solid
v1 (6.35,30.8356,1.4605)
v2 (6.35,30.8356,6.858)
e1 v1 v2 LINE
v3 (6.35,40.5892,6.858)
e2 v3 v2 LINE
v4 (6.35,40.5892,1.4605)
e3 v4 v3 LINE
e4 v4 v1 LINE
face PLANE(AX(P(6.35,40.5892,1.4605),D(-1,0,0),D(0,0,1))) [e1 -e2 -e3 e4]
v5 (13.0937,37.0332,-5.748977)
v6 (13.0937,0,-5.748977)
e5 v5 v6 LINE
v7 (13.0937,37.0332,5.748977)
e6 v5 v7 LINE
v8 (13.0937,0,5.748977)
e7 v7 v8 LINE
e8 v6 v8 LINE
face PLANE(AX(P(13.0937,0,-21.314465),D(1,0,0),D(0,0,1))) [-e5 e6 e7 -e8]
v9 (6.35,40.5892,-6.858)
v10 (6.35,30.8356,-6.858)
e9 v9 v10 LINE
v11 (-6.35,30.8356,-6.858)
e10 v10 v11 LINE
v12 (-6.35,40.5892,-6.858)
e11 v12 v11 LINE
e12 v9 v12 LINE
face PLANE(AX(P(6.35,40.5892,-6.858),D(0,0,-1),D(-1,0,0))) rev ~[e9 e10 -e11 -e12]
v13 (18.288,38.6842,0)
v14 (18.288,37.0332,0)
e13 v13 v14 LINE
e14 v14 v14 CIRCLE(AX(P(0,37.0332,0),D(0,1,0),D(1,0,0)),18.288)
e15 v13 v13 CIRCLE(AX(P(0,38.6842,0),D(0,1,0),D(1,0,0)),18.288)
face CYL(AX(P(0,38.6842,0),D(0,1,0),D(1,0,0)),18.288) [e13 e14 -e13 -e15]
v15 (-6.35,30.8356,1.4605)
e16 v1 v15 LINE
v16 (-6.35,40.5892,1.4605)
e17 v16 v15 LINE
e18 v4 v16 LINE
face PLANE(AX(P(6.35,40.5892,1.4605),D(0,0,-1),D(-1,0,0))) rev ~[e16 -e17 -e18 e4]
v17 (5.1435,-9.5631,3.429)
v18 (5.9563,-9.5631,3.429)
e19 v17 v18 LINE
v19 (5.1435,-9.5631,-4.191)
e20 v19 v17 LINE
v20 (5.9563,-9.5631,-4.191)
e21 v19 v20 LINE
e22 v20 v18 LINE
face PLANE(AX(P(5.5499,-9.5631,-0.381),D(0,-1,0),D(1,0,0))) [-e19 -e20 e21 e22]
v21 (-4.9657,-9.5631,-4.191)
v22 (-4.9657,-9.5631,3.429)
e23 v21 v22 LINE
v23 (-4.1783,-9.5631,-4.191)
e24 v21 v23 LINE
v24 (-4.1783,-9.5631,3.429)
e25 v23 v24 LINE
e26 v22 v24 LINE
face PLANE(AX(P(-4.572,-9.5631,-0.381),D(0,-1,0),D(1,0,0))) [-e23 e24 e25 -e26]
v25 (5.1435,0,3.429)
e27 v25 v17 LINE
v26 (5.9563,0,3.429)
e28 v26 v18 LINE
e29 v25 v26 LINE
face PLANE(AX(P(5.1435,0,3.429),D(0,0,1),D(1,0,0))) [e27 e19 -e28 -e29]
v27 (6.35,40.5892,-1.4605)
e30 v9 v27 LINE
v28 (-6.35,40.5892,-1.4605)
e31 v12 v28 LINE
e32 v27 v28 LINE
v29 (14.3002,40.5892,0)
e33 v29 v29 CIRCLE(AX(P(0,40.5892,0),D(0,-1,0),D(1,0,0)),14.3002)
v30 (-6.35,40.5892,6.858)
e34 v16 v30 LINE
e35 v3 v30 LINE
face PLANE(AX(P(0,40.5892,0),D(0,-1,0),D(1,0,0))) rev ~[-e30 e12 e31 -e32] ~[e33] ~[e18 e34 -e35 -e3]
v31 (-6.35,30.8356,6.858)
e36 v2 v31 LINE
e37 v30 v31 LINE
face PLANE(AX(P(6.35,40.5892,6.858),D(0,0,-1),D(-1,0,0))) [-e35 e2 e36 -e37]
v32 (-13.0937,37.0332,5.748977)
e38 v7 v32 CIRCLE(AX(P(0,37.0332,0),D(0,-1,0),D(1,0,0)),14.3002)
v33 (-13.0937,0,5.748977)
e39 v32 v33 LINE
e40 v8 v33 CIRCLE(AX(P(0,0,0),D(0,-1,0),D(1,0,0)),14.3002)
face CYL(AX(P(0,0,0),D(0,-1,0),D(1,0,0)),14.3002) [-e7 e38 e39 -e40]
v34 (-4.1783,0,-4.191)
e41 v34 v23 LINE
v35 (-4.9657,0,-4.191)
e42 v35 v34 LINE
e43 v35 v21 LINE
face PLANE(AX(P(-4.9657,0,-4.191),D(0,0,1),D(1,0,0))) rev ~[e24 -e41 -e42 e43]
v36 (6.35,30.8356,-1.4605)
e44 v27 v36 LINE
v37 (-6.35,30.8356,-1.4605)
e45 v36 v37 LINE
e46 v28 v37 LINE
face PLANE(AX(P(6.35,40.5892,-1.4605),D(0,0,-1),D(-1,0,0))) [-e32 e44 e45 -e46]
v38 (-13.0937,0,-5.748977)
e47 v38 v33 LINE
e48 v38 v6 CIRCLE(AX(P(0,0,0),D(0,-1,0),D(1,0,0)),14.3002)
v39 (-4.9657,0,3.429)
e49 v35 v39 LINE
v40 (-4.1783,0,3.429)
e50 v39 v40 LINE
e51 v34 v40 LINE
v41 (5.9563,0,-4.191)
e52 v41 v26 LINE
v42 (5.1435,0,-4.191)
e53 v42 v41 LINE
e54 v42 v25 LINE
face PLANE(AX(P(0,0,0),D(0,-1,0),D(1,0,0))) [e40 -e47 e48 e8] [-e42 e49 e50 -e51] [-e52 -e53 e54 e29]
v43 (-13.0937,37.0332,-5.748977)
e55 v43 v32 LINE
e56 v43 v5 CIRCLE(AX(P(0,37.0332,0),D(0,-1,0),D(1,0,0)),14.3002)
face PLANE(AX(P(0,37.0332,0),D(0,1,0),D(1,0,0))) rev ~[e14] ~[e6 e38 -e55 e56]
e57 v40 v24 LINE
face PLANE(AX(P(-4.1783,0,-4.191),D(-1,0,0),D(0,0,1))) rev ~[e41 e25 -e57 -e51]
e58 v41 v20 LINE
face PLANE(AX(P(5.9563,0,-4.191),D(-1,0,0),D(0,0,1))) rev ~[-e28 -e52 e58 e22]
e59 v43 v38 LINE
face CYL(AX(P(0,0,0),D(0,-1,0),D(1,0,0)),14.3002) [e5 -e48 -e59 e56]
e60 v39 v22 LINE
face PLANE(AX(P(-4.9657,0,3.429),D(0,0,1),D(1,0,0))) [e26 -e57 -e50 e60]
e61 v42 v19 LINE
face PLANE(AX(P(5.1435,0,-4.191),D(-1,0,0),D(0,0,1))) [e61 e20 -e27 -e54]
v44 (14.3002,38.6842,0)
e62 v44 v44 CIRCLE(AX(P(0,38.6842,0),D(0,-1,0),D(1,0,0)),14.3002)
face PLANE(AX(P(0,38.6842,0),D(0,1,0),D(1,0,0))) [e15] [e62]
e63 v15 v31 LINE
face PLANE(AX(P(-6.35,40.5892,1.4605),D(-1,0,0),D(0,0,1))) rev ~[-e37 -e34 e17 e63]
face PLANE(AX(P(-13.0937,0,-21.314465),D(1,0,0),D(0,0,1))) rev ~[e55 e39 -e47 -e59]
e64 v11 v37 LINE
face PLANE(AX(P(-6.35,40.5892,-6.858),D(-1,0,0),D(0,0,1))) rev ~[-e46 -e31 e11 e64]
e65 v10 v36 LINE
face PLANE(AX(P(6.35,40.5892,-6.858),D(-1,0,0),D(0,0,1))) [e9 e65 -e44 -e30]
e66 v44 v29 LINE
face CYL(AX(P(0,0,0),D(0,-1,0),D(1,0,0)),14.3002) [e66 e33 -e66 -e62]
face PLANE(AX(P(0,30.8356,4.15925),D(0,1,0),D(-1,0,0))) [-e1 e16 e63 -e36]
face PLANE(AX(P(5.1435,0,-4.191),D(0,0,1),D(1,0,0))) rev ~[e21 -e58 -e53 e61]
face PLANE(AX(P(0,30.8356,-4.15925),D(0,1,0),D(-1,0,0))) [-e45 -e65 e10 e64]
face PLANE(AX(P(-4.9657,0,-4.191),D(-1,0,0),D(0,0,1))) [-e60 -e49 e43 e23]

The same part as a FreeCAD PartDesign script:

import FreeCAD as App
import Part
import Sketcher

V = App.Vector
Q = App.Units.Quantity

doc = App.newDocument("Part")
body = doc.addObject("PartDesign::Body", "Body")

sketch1 = body.newObject("Sketcher::SketchObject", "Sketch")
sketch1.AttachmentSupport = (doc.getObject("XZ_Plane"), [""])
sketch1.MapMode = "FlatFace"
sketch1.addGeometry(Part.Circle(V(0, 0, 0), V(0, 0, 1), 14.3002), False)
sketch1.addConstraint(Sketcher.Constraint("Coincident", 0, 3, -1, 1))
sketch1.addConstraint(Sketcher.Constraint("Diameter", 0, Q("1.126 in")))
pad1 = body.newObject("PartDesign::Pad", "Pad")
pad1.Profile = sketch1
pad1.Length = Q("1.598 in")
pad1.Reversed = True

sketch2 = body.newObject("Sketcher::SketchObject", "Sketch001")
sketch2.AttachmentSupport = (doc.getObject("XZ_Plane"), [""])
sketch2.MapMode = "FlatFace"
sketch2.addGeometry(Part.LineSegment(V(-24.961438, 22.308411, 0), V(-24.961438, -21.314465, 0)), False)
sketch2.addGeometry(Part.LineSegment(V(-24.961438, -21.314465, 0), V(-13.0937, -21.314465, 0)), False)
sketch2.addGeometry(Part.LineSegment(V(-13.0937, -21.314465, 0), V(-13.0937, 22.308411, 0)), False)
sketch2.addGeometry(Part.LineSegment(V(-13.0937, 22.308411, 0), V(-24.961438, 22.308411, 0)), False)
sketch2.addGeometry(Part.LineSegment(V(13.0937, 22.308411, 0), V(13.0937, -21.314465, 0)), False)
sketch2.addGeometry(Part.LineSegment(V(13.0937, -21.314465, 0), V(23.443718, -21.314465, 0)), False)
sketch2.addGeometry(Part.LineSegment(V(23.443718, -21.314465, 0), V(23.443718, 22.308411, 0)), False)
sketch2.addGeometry(Part.LineSegment(V(23.443718, 22.308411, 0), V(13.0937, 22.308411, 0)), False)
sketch2.addConstraint(Sketcher.Constraint("Coincident", 0, 2, 1, 1))
sketch2.addConstraint(Sketcher.Constraint("Coincident", 1, 2, 2, 1))
sketch2.addConstraint(Sketcher.Constraint("Coincident", 2, 2, 3, 1))
sketch2.addConstraint(Sketcher.Constraint("Coincident", 3, 2, 0, 1))
sketch2.addConstraint(Sketcher.Constraint("Coincident", 4, 2, 5, 1))
sketch2.addConstraint(Sketcher.Constraint("Coincident", 5, 2, 6, 1))
sketch2.addConstraint(Sketcher.Constraint("Coincident", 6, 2, 7, 1))
sketch2.addConstraint(Sketcher.Constraint("Coincident", 7, 2, 4, 1))
sketch2.addConstraint(Sketcher.Constraint("Vertical", 0))
sketch2.addConstraint(Sketcher.Constraint("Horizontal", 1))
sketch2.addConstraint(Sketcher.Constraint("Vertical", 2))
sketch2.addConstraint(Sketcher.Constraint("Horizontal", 3))
sketch2.addConstraint(Sketcher.Constraint("Vertical", 4))
sketch2.addConstraint(Sketcher.Constraint("Horizontal", 5))
sketch2.addConstraint(Sketcher.Constraint("Vertical", 6))
sketch2.addConstraint(Sketcher.Constraint("Horizontal", 7))
sketch2.addConstraint(Sketcher.Constraint("Symmetric", 1, 2, 4, 2, -2))
sketch2.addConstraint(Sketcher.Constraint("Horizontal", 3, 2, 6, 2))
sketch2.addConstraint(Sketcher.Constraint("DistanceX", 1, 2, 4, 2, Q("1.031 in")))
sketch2.addConstraint(Sketcher.Constraint("DistanceX", 1, 1, 1, 2, Q("11.867738 mm")))
sketch2.addConstraint(Sketcher.Constraint("DistanceX", 5, 1, 5, 2, Q("10.350018 mm")))
sketch2.addConstraint(Sketcher.Constraint("DistanceY", 0, 2, 0, 1, Q("43.622876 mm")))
sketch2.addConstraint(Sketcher.Constraint("DistanceY", -1, 1, 2, 2, Q("22.308411 mm")))
pocket1 = body.newObject("PartDesign::Pocket", "Pocket")
pocket1.Profile = sketch2
pocket1.Length = Q("1.46 in")

sketch3 = body.newObject("Sketcher::SketchObject", "Sketch002")
sketch3.AttachmentSupport = (doc.getObject("XZ_Plane"), [""])
sketch3.MapMode = "FlatFace"
sketch3.AttachmentOffset = App.Placement(V(0, 0, -1.523 * 25.4), App.Rotation())
sketch3.addGeometry(Part.Circle(V(0, 0, 0), V(0, 0, 1), 18.288), False)
sketch3.addConstraint(Sketcher.Constraint("Coincident", 0, 3, -1, 1))
sketch3.addConstraint(Sketcher.Constraint("Diameter", 0, Q("1.44 in")))
pad2 = body.newObject("PartDesign::Pad", "Pad001")
pad2.Profile = sketch3
pad2.Length = Q("0.065 in")

sketch4 = body.newObject("Sketcher::SketchObject", "Sketch003")
sketch4.AttachmentSupport = (doc.getObject("XZ_Plane"), [""])
sketch4.MapMode = "FlatFace"
sketch4.AttachmentOffset = App.Placement(V(0, 0, -1.598 * 25.4), App.Rotation())
sketch4.addGeometry(Part.LineSegment(V(6.35, 6.858, 0), V(6.35, 1.4605, 0)), False)
sketch4.addGeometry(Part.LineSegment(V(6.35, 1.4605, 0), V(-6.35, 1.4605, 0)), False)
sketch4.addGeometry(Part.LineSegment(V(-6.35, 1.4605, 0), V(-6.35, 6.858, 0)), False)
sketch4.addGeometry(Part.LineSegment(V(-6.35, 6.858, 0), V(6.35, 6.858, 0)), False)
sketch4.addGeometry(Part.LineSegment(V(6.35, -1.4605, 0), V(6.35, -6.858, 0)), False)
sketch4.addGeometry(Part.LineSegment(V(6.35, -6.858, 0), V(-6.35, -6.858, 0)), False)
sketch4.addGeometry(Part.LineSegment(V(-6.35, -6.858, 0), V(-6.35, -1.4605, 0)), False)
sketch4.addGeometry(Part.LineSegment(V(-6.35, -1.4605, 0), V(6.35, -1.4605, 0)), False)
sketch4.addConstraint(Sketcher.Constraint("Coincident", 0, 2, 1, 1))
sketch4.addConstraint(Sketcher.Constraint("Coincident", 1, 2, 2, 1))
sketch4.addConstraint(Sketcher.Constraint("Coincident", 2, 2, 3, 1))
sketch4.addConstraint(Sketcher.Constraint("Coincident", 3, 2, 0, 1))
sketch4.addConstraint(Sketcher.Constraint("Coincident", 4, 2, 5, 1))
sketch4.addConstraint(Sketcher.Constraint("Coincident", 5, 2, 6, 1))
sketch4.addConstraint(Sketcher.Constraint("Coincident", 6, 2, 7, 1))
sketch4.addConstraint(Sketcher.Constraint("Coincident", 7, 2, 4, 1))
sketch4.addConstraint(Sketcher.Constraint("Vertical", 0))
sketch4.addConstraint(Sketcher.Constraint("Horizontal", 1))
sketch4.addConstraint(Sketcher.Constraint("Vertical", 2))
sketch4.addConstraint(Sketcher.Constraint("Horizontal", 3))
sketch4.addConstraint(Sketcher.Constraint("Vertical", 4))
sketch4.addConstraint(Sketcher.Constraint("Horizontal", 5))
sketch4.addConstraint(Sketcher.Constraint("Vertical", 6))
sketch4.addConstraint(Sketcher.Constraint("Horizontal", 7))
sketch4.addConstraint(Sketcher.Constraint("Symmetric", 2, 2, 4, 2, -1, 1))
sketch4.addConstraint(Sketcher.Constraint("Symmetric", 0, 2, 6, 2, -1, 1))
sketch4.addConstraint(Sketcher.Constraint("Vertical", 3, 2, 4, 2))
sketch4.addConstraint(Sketcher.Constraint("DistanceX", 1, 2, 1, 1, Q("0.5 in")))
sketch4.addConstraint(Sketcher.Constraint("DistanceY", -1, 1, 2, 2, Q("0.27 in")))
sketch4.addConstraint(Sketcher.Constraint("DistanceY", 0, 2, 0, 1, Q("0.2125 in")))
pocket2 = body.newObject("PartDesign::Pocket", "Pocket001")
pocket2.Profile = sketch4
pocket2.Length = Q("0.384 in")
pocket2.Reversed = True

sketch5 = body.newObject("Sketcher::SketchObject", "Sketch004")
sketch5.AttachmentSupport = (doc.getObject("XZ_Plane"), [""])
sketch5.MapMode = "FlatFace"
sketch5.addGeometry(Part.LineSegment(V(-4.9657, 3.429, 0), V(-4.9657, -4.191, 0)), False)
sketch5.addGeometry(Part.LineSegment(V(-4.9657, -4.191, 0), V(-4.1783, -4.191, 0)), False)
sketch5.addGeometry(Part.LineSegment(V(-4.1783, -4.191, 0), V(-4.1783, 3.429, 0)), False)
sketch5.addGeometry(Part.LineSegment(V(-4.1783, 3.429, 0), V(-4.9657, 3.429, 0)), False)
sketch5.addGeometry(Part.LineSegment(V(5.1435, 3.429, 0), V(5.1435, -4.191, 0)), False)
sketch5.addGeometry(Part.LineSegment(V(5.1435, -4.191, 0), V(5.9563, -4.191, 0)), False)
sketch5.addGeometry(Part.LineSegment(V(5.9563, -4.191, 0), V(5.9563, 3.429, 0)), False)
sketch5.addGeometry(Part.LineSegment(V(5.9563, 3.429, 0), V(5.1435, 3.429, 0)), False)
sketch5.addConstraint(Sketcher.Constraint("Coincident", 0, 2, 1, 1))
sketch5.addConstraint(Sketcher.Constraint("Coincident", 1, 2, 2, 1))
sketch5.addConstraint(Sketcher.Constraint("Coincident", 2, 2, 3, 1))
sketch5.addConstraint(Sketcher.Constraint("Coincident", 3, 2, 0, 1))
sketch5.addConstraint(Sketcher.Constraint("Coincident", 4, 2, 5, 1))
sketch5.addConstraint(Sketcher.Constraint("Coincident", 5, 2, 6, 1))
sketch5.addConstraint(Sketcher.Constraint("Coincident", 6, 2, 7, 1))
sketch5.addConstraint(Sketcher.Constraint("Coincident", 7, 2, 4, 1))
sketch5.addConstraint(Sketcher.Constraint("Vertical", 0))
sketch5.addConstraint(Sketcher.Constraint("Horizontal", 1))
sketch5.addConstraint(Sketcher.Constraint("Vertical", 2))
sketch5.addConstraint(Sketcher.Constraint("Horizontal", 3))
sketch5.addConstraint(Sketcher.Constraint("Vertical", 4))
sketch5.addConstraint(Sketcher.Constraint("Horizontal", 5))
sketch5.addConstraint(Sketcher.Constraint("Vertical", 6))
sketch5.addConstraint(Sketcher.Constraint("Horizontal", 7))
sketch5.addConstraint(Sketcher.Constraint("Horizontal", 1, 2, 4, 2))
sketch5.addConstraint(Sketcher.Constraint("Horizontal", 3, 2, 6, 2))
sketch5.addConstraint(Sketcher.Constraint("DistanceY", 0, 2, 0, 1, Q("0.3 in")))
sketch5.addConstraint(Sketcher.Constraint("DistanceX", 1, 1, 1, 2, Q("0.031 in")))
sketch5.addConstraint(Sketcher.Constraint("DistanceX", 5, 1, 5, 2, Q("0.032 in")))
sketch5.addConstraint(Sketcher.Constraint("DistanceX", 0, 2, 5, 2, Q("0.43 in")))
sketch5.addConstraint(Sketcher.Constraint("DistanceY", 0, 2, -1, 1, Q("0.165 in")))
sketch5.addConstraint(Sketcher.Constraint("DistanceX", 0, 2, -1, 1, Q("0.1955 in")))
pad3 = body.newObject("PartDesign::Pad", "Pad002")
pad3.Profile = sketch5
pad3.Length = Q("0.3765 in")

doc.recompute()
